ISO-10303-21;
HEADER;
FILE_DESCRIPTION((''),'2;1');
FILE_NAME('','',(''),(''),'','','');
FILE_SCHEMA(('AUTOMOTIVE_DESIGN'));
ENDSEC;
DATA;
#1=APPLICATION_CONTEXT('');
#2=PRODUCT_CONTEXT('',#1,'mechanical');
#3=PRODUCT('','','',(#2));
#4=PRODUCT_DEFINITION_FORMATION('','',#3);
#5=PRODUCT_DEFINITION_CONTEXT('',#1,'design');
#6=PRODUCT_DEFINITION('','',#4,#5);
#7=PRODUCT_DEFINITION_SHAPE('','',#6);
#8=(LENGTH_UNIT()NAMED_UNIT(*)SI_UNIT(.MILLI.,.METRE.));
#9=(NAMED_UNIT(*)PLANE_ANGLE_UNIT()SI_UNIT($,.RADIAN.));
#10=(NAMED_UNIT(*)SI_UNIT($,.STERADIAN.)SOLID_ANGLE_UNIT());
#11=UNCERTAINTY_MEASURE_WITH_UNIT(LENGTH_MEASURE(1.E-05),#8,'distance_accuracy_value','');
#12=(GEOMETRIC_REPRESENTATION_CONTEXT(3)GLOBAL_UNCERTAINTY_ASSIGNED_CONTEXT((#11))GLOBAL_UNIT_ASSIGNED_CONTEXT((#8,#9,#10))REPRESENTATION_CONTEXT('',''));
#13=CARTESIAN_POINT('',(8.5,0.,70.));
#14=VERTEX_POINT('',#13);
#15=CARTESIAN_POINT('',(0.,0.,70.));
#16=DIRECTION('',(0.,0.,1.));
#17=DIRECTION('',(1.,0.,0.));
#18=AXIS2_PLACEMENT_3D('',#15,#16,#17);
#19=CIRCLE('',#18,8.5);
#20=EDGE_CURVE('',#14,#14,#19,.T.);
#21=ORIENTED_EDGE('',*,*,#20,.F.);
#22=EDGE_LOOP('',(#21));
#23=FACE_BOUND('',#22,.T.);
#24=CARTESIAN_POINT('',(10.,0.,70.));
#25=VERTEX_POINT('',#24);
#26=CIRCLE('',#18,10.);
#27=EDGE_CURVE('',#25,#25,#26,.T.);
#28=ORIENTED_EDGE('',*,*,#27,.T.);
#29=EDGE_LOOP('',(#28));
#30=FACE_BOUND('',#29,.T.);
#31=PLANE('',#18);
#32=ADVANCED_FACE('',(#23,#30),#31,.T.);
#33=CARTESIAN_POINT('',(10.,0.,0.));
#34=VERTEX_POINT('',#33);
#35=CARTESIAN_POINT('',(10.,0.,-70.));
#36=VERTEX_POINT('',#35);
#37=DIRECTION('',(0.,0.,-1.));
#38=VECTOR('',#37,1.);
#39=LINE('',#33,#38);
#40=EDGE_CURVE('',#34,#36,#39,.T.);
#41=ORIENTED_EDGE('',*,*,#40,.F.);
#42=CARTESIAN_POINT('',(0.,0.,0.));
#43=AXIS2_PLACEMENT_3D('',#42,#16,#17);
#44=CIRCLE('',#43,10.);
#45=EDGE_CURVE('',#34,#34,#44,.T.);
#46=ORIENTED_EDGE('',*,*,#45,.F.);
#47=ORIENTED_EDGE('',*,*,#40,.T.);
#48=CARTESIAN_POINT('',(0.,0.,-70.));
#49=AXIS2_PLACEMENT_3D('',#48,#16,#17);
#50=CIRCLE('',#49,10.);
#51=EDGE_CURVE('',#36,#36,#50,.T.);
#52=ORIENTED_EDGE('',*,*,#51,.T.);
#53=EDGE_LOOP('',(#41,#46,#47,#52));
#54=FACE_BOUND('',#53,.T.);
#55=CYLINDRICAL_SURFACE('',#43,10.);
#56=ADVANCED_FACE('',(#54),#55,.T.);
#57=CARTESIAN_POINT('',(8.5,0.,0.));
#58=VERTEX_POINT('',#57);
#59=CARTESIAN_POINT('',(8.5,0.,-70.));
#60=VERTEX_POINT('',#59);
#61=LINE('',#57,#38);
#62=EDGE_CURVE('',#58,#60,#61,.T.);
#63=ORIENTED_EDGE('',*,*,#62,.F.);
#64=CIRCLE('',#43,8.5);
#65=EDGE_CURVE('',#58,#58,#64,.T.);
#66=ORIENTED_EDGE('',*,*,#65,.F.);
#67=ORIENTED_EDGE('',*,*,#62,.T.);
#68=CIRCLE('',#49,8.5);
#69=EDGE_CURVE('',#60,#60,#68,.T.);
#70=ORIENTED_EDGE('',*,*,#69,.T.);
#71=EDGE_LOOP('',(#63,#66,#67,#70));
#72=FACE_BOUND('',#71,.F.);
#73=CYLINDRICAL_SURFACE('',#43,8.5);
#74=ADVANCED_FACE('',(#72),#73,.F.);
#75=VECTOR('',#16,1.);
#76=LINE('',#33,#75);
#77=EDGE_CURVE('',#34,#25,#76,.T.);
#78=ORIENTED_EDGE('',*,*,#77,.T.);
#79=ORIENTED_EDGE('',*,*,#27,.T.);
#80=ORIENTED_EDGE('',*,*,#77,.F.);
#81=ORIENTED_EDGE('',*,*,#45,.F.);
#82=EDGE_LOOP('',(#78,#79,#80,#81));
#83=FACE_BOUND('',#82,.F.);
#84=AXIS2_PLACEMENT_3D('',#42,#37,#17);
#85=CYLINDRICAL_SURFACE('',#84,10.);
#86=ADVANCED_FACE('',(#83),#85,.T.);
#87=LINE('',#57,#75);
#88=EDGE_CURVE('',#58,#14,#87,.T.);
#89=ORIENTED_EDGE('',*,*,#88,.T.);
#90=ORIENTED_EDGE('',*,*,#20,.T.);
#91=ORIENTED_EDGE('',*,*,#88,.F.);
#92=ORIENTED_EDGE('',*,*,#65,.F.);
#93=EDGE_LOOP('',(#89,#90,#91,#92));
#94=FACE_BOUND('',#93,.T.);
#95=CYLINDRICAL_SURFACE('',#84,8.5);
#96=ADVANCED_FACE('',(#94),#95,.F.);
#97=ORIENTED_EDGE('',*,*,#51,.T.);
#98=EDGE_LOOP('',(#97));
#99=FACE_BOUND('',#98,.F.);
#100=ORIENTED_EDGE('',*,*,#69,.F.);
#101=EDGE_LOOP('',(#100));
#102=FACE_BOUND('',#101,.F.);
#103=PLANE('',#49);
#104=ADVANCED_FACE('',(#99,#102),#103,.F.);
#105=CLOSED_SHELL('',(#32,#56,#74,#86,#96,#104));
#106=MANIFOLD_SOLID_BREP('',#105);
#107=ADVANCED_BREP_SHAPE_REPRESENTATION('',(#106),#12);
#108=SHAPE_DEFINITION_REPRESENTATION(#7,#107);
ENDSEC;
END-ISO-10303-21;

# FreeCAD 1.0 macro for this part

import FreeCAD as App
import Part
import Sketcher
from FreeCAD import Vector

doc = App.newDocument("Part")
body = doc.addObject("PartDesign::Body", "Body")

# Sketch on XY plane
sketch1 = body.newObject("Sketcher::SketchObject", "Sketch")
sketch1.AttachmentSupport = (doc.getObject("XY_Plane"), [""])
sketch1.MapMode = "FlatFace"
sketch1.addGeometry([
    Part.Circle(Vector(0, 0, 0), Vector(0, 0, 1), 10),
    Part.Circle(Vector(0, 0, 0), Vector(0, 0, 1), 8.5),
], False)
sketch1.addConstraint([
    Sketcher.Constraint("Coincident", 0, 3, -1, 1),
    Sketcher.Constraint("Coincident", 1, 3, -1, 1),
    Sketcher.Constraint("Diameter", 0, 20.0),
    Sketcher.Constraint("Diameter", 1, 17.0),
])
pad1 = body.newObject("PartDesign::Pad", "Pad")
pad1.Profile = sketch1
pad1.Length = 140
pad1.Midplane = True

doc.recompute()
